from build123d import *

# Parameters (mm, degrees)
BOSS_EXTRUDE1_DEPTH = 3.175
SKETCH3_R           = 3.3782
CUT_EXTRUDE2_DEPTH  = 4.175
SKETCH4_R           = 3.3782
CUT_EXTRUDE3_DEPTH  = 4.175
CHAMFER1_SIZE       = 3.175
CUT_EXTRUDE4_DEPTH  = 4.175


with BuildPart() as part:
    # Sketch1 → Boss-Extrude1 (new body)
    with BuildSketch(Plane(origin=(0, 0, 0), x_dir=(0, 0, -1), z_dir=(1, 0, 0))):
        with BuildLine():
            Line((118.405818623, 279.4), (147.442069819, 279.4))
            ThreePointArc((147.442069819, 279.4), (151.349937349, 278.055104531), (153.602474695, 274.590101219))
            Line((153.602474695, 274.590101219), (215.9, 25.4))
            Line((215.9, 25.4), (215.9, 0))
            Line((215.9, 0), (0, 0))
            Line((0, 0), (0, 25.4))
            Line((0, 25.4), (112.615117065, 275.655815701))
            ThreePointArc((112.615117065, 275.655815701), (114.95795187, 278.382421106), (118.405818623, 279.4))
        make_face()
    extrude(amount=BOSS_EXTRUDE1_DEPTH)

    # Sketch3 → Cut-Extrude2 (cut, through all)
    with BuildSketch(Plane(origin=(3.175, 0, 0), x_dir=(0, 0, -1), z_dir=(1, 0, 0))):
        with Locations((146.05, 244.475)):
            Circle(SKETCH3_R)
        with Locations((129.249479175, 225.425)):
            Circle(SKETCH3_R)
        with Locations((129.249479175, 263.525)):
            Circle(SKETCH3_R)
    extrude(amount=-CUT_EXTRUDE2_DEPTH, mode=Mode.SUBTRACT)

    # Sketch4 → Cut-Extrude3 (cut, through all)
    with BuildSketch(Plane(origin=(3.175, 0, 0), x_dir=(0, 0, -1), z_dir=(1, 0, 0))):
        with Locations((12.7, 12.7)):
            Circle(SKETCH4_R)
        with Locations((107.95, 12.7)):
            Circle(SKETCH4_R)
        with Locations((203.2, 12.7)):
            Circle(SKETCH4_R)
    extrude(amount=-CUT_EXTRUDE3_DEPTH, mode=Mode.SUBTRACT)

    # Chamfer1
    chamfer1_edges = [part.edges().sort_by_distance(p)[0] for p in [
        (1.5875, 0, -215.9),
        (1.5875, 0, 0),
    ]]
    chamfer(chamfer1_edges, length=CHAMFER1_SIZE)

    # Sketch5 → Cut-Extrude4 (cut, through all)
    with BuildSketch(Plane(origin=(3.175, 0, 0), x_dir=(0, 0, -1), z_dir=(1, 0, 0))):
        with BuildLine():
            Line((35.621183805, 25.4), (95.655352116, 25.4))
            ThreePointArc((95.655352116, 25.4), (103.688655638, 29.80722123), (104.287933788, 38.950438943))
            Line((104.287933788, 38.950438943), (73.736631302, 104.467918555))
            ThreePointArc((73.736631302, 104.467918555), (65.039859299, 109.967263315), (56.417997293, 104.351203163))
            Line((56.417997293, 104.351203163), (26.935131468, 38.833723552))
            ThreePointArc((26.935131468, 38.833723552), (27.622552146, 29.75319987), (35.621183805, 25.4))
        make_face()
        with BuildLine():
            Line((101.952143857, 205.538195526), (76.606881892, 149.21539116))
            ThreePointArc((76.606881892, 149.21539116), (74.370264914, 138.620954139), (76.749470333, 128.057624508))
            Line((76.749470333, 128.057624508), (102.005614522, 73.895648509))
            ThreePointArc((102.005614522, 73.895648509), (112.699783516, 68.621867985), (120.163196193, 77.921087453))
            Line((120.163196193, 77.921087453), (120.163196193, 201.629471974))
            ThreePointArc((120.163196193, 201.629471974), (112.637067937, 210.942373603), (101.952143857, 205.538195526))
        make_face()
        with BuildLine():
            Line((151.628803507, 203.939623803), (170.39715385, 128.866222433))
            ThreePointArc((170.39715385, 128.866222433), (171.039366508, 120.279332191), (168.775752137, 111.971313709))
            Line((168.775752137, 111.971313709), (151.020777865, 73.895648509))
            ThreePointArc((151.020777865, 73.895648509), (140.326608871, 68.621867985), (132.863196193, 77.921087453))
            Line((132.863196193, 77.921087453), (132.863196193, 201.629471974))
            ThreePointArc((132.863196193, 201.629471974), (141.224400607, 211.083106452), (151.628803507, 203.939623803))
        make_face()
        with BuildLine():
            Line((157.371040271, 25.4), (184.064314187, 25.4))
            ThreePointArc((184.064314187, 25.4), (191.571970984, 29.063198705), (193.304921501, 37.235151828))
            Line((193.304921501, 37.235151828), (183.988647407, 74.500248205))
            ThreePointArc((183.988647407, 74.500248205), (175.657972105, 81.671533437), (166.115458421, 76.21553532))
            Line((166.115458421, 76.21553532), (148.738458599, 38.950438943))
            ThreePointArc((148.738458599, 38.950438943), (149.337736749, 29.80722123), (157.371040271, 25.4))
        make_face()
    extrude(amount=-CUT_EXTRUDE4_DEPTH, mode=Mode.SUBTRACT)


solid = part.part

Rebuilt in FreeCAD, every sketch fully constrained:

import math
import FreeCAD as App
import Part
import Sketcher
Q = App.Units.Quantity


def edges_at(feature, points):
    """Names of the edges that pass closest to the given points."""
    edges = feature.Shape.Edges
    near = lambda p: min(range(len(edges)), key=lambda i: edges[i].distToShape(Part.Vertex(*p))[0])
    return sorted({f"Edge{near(p) + 1}" for p in points})

doc = App.newDocument("Part")
body = doc.addObject("PartDesign::Body", "Body")

sketch1 = body.newObject("Sketcher::SketchObject", "Sketch")
sketch1.AttachmentSupport = (doc.getObject("YZ_Plane"), [""])
sketch1.MapMode = "FlatFace"
sketch1.addGeometry(Part.LineSegment(App.Vector(279.4, -147.44207, 0), App.Vector(279.4, -118.405819, 0)), False)
sketch1.addGeometry(Part.ArcOfCircle(Part.Circle(App.Vector(273.05, -118.405819, 0), App.Vector(0, 0, 1), 6.35), math.radians(0), math.radians(65.772255)), False)
sketch1.addGeometry(Part.LineSegment(App.Vector(275.655816, -112.615117, 0), App.Vector(25.4, 0, 0)), False)
sketch1.addGeometry(Part.LineSegment(App.Vector(25.4, 0, 0), App.Vector(0, 0, 0)), False)
sketch1.addGeometry(Part.LineSegment(App.Vector(0, 0, 0), App.Vector(0, -215.9, 0)), False)
sketch1.addGeometry(Part.LineSegment(App.Vector(0, -215.9, 0), App.Vector(25.4, -215.9, 0)), False)
sketch1.addGeometry(Part.LineSegment(App.Vector(25.4, -215.9, 0), App.Vector(274.590101, -153.602475, 0)), False)
sketch1.addGeometry(Part.ArcOfCircle(Part.Circle(App.Vector(273.05, -147.44207, 0), App.Vector(0, 0, 1), 6.35), math.radians(-75.963757), math.radians(0)), False)
sketch1.addConstraint(Sketcher.Constraint("Tangent", 0, 2, 1, 1))
sketch1.addConstraint(Sketcher.Constraint("Tangent", 1, 2, 2, 1))
sketch1.addConstraint(Sketcher.Constraint("Coincident", 2, 2, 3, 1))
sketch1.addConstraint(Sketcher.Constraint("Coincident", 3, 2, 4, 1))
sketch1.addConstraint(Sketcher.Constraint("Coincident", 4, 2, 5, 1))
sketch1.addConstraint(Sketcher.Constraint("Coincident", 5, 2, 6, 1))
sketch1.addConstraint(Sketcher.Constraint("Tangent", 6, 2, 7, 1))
sketch1.addConstraint(Sketcher.Constraint("Tangent", 7, 2, 0, 1))
sketch1.addConstraint(Sketcher.Constraint("Vertical", 0))
sketch1.addConstraint(Sketcher.Constraint("Horizontal", 3))
sketch1.addConstraint(Sketcher.Constraint("Vertical", 4))
sketch1.addConstraint(Sketcher.Constraint("Horizontal", 5))
sketch1.addConstraint(Sketcher.Constraint("Coincident", 3, 2, -1, 1))
sketch1.addConstraint(Sketcher.Constraint("Equal", 1, 7))
sketch1.addConstraint(Sketcher.Constraint("Vertical", 2, 2, 5, 2))
sketch1.addConstraint(Sketcher.Constraint("DistanceX", 3, 2, 3, 1, Q("1 in")))
sketch1.addConstraint(Sketcher.Constraint("Radius", 1, Q("0.25 in")))
sketch1.addConstraint(Sketcher.Constraint("DistanceY", 4, 2, 4, 1, Q("8.5 in")))
sketch1.addConstraint(Sketcher.Constraint("DistanceX", -1, 1, 0, 2, Q("11 in")))
sketch1.addConstraint(Sketcher.Constraint("DistanceY", 0, 1, 0, 2, Q("29.036251 mm")))
sketch1.addConstraint(Sketcher.Constraint("DistanceX", -1, 1, 6, 2, Q("274.590101 mm")))
pad1 = body.newObject("PartDesign::Pad", "Pad")
pad1.Profile = sketch1
pad1.Length = Q("0.125 in")

sketch2 = body.newObject("Sketcher::SketchObject", "Sketch001")
sketch2.AttachmentSupport = (doc.getObject("YZ_Plane"), [""])
sketch2.MapMode = "FlatFace"
sketch2.AttachmentOffset = App.Placement(App.Vector(0, 0, 0.125 * 25.4), App.Rotation())
sketch2.addGeometry(Part.Circle(App.Vector(244.475, -146.05, 0), App.Vector(0, 0, 1), 3.3782), False)
sketch2.addGeometry(Part.Circle(App.Vector(225.425, -129.249479, 0), App.Vector(0, 0, 1), 3.3782), False)
sketch2.addGeometry(Part.Circle(App.Vector(263.525, -129.249479, 0), App.Vector(0, 0, 1), 3.3782), False)
sketch2.addConstraint(Sketcher.Constraint("Equal", 0, 1))
sketch2.addConstraint(Sketcher.Constraint("Equal", 1, 2))
sketch2.addConstraint(Sketcher.Constraint("Horizontal", 1, 3, 2, 3))
sketch2.addConstraint(Sketcher.Constraint("Diameter", 0, Q("0.266 in")))
sketch2.addConstraint(Sketcher.Constraint("DistanceX", 1, 3, 2, 3, Q("1.5 in")))
sketch2.addConstraint(Sketcher.Constraint("DistanceY", 0, 3, -1, 1, Q("5.75 in")))
sketch2.addConstraint(Sketcher.Constraint("DistanceX", 1, 3, 0, 3, Q("0.75 in")))
sketch2.addConstraint(Sketcher.Constraint("DistanceX", -1, 1, 0, 3, Q("9.625 in")))
sketch2.addConstraint(Sketcher.Constraint("DistanceY", 1, 3, -1, 1, Q("129.249479 mm")))
pocket1 = body.newObject("PartDesign::Pocket", "Pocket")
pocket1.Profile = sketch2
pocket1.Type = "ThroughAll"

sketch3 = body.newObject("Sketcher::SketchObject", "Sketch002")
sketch3.AttachmentSupport = (doc.getObject("YZ_Plane"), [""])
sketch3.MapMode = "FlatFace"
sketch3.AttachmentOffset = App.Placement(App.Vector(0, 0, 0.125 * 25.4), App.Rotation())
sketch3.addGeometry(Part.Circle(App.Vector(12.7, -12.7, 0), App.Vector(0, 0, 1), 3.3782), False)
sketch3.addGeometry(Part.Circle(App.Vector(12.7, -107.95, 0), App.Vector(0, 0, 1), 3.3782), False)
sketch3.addGeometry(Part.Circle(App.Vector(12.7, -203.2, 0), App.Vector(0, 0, 1), 3.3782), False)
sketch3.addConstraint(Sketcher.Constraint("Equal", 0, 1))
sketch3.addConstraint(Sketcher.Constraint("Equal", 1, 2))
sketch3.addConstraint(Sketcher.Constraint("Vertical", 0, 3, 1, 3))
sketch3.addConstraint(Sketcher.Constraint("Vertical", 1, 3, 2, 3))
sketch3.addConstraint(Sketcher.Constraint("Diameter", 0, Q("0.266 in")))
sketch3.addConstraint(Sketcher.Constraint("DistanceY", 2, 3, -1, 1, Q("8 in")))
sketch3.addConstraint(Sketcher.Constraint("DistanceX", -1, 1, 0, 3, Q("0.5 in")))
sketch3.addConstraint(Sketcher.Constraint("DistanceY", 0, 3, -1, 1, Q("0.5 in")))
sketch3.addConstraint(Sketcher.Constraint("DistanceY", 1, 3, -1, 1, Q("4.25 in")))
pocket2 = body.newObject("PartDesign::Pocket", "Pocket001")
pocket2.Profile = sketch3
pocket2.Type = "ThroughAll"
doc.recompute()

chamfer = body.newObject("PartDesign::Chamfer", "Chamfer")
chamfer.Base = (pocket2, edges_at(pocket2, [(1.587, 0, -215.9), (1.587, 0, 0)]))
chamfer.Size = Q("0.125 in")

sketch4 = body.newObject("Sketcher::SketchObject", "Sketch003")
sketch4.AttachmentSupport = (doc.getObject("YZ_Plane"), [""])
sketch4.MapMode = "FlatFace"
sketch4.AttachmentOffset = App.Placement(App.Vector(0, 0, 0.125 * 25.4), App.Rotation())
sketch4.addGeometry(Part.LineSegment(App.Vector(25.4, -35.621184, 0), App.Vector(25.4, -95.655352, 0)), False)
sketch4.addGeometry(Part.ArcOfCircle(Part.Circle(App.Vector(34.925, -95.655352, 0), App.Vector(0, 0, 1), 9.525), math.radians(180), math.radians(295)), False)
sketch4.addGeometry(Part.LineSegment(App.Vector(38.950439, -104.287934, 0), App.Vector(104.467919, -73.736631, 0)), False)
sketch4.addGeometry(Part.ArcOfCircle(Part.Circle(App.Vector(100.44248, -65.10405, 0), App.Vector(0, 0, 1), 9.525), math.radians(-65), math.radians(65.772255)), False)
sketch4.addGeometry(Part.LineSegment(App.Vector(104.351203, -56.417997, 0), App.Vector(38.833724, -26.935131, 0)), False)
sketch4.addGeometry(Part.ArcOfCircle(Part.Circle(App.Vector(34.925, -35.621184, 0), App.Vector(0, 0, 1), 9.525), math.radians(65.772255), math.radians(180)), False)
sketch4.addGeometry(Part.LineSegment(App.Vector(205.538196, -101.952144, 0), App.Vector(149.215391, -76.606882, 0)), False)
sketch4.addGeometry(Part.ArcOfCircle(Part.Circle(App.Vector(138.792128, -99.769688, 0), App.Vector(0, 0, 1), 25.4), math.radians(65.772255), math.radians(115)), False)
sketch4.addGeometry(Part.LineSegment(App.Vector(128.057625, -76.74947, 0), App.Vector(73.895649, -102.005615, 0)), False)
sketch4.addGeometry(Part.ArcOfCircle(Part.Circle(App.Vector(77.921087, -110.638196, 0), App.Vector(0, 0, 1), 9.525), math.radians(115), math.radians(270)), False)
sketch4.addGeometry(Part.LineSegment(App.Vector(77.921087, -120.163196, 0), App.Vector(201.629472, -120.163196, 0)), False)
sketch4.addGeometry(Part.ArcOfCircle(Part.Circle(App.Vector(201.629472, -110.638196, 0), App.Vector(0, 0, 1), 9.525), math.radians(-90), math.radians(65.772255)), False)
sketch4.addGeometry(Part.LineSegment(App.Vector(128.866222, -170.397154, 0), App.Vector(203.939624, -151.628804, 0)), False)
sketch4.addGeometry(Part.ArcOfCircle(Part.Circle(App.Vector(201.629472, -142.388196, 0), App.Vector(0, 0, 1), 9.525), math.radians(-75.963757), math.radians(90)), False)
sketch4.addGeometry(Part.LineSegment(App.Vector(201.629472, -132.863196, 0), App.Vector(77.921087, -132.863196, 0)), False)
sketch4.addGeometry(Part.ArcOfCircle(Part.Circle(App.Vector(77.921087, -142.388196, 0), App.Vector(0, 0, 1), 9.525), math.radians(90), math.radians(245)), False)
sketch4.addGeometry(Part.LineSegment(App.Vector(73.895649, -151.020778, 0), App.Vector(111.971314, -168.775752, 0)), False)
sketch4.addGeometry(Part.ArcOfCircle(Part.Circle(App.Vector(122.705818, -145.755534, 0), App.Vector(0, 0, 1), 25.4), math.radians(-115), math.radians(-75.963757)), False)
sketch4.addGeometry(Part.LineSegment(App.Vector(25.4, -157.37104, 0), App.Vector(25.4, -184.064314, 0)), False)
sketch4.addGeometry(Part.ArcOfCircle(Part.Circle(App.Vector(34.925, -184.064314, 0), App.Vector(0, 0, 1), 9.525), math.radians(180), math.radians(284.036243)), False)
sketch4.addGeometry(Part.LineSegment(App.Vector(37.235152, -193.304922, 0), App.Vector(74.500248, -183.988647, 0)), False)
sketch4.addGeometry(Part.ArcOfCircle(Part.Circle(App.Vector(72.190096, -174.74804, 0), App.Vector(0, 0, 1), 9.525), math.radians(-75.963757), math.radians(65)), False)
sketch4.addGeometry(Part.LineSegment(App.Vector(76.215535, -166.115458, 0), App.Vector(38.950439, -148.738459, 0)), False)
sketch4.addGeometry(Part.ArcOfCircle(Part.Circle(App.Vector(34.925, -157.37104, 0), App.Vector(0, 0, 1), 9.525), math.radians(65), math.radians(180)), False)
sketch4.addConstraint(Sketcher.Constraint("Tangent", 0, 2, 1, 1))
sketch4.addConstraint(Sketcher.Constraint("Tangent", 1, 2, 2, 1))
sketch4.addConstraint(Sketcher.Constraint("Tangent", 2, 2, 3, 1))
sketch4.addConstraint(Sketcher.Constraint("Tangent", 3, 2, 4, 1))
sketch4.addConstraint(Sketcher.Constraint("Tangent", 4, 2, 5, 1))
sketch4.addConstraint(Sketcher.Constraint("Tangent", 5, 2, 0, 1))
sketch4.addConstraint(Sketcher.Constraint("Tangent", 6, 2, 7, 1))
sketch4.addConstraint(Sketcher.Constraint("Tangent", 7, 2, 8, 1))
sketch4.addConstraint(Sketcher.Constraint("Tangent", 8, 2, 9, 1))
sketch4.addConstraint(Sketcher.Constraint("Tangent", 9, 2, 10, 1))
sketch4.addConstraint(Sketcher.Constraint("Tangent", 10, 2, 11, 1))
sketch4.addConstraint(Sketcher.Constraint("Tangent", 11, 2, 6, 1))
sketch4.addConstraint(Sketcher.Constraint("Tangent", 12, 2, 13, 1))
sketch4.addConstraint(Sketcher.Constraint("Tangent", 13, 2, 14, 1))
sketch4.addConstraint(Sketcher.Constraint("Tangent", 14, 2, 15, 1))
sketch4.addConstraint(Sketcher.Constraint("Tangent", 15, 2, 16, 1))
sketch4.addConstraint(Sketcher.Constraint("Tangent", 16, 2, 17, 1))
sketch4.addConstraint(Sketcher.Constraint("Tangent", 17, 2, 12, 1))
sketch4.addConstraint(Sketcher.Constraint("Tangent", 18, 2, 19, 1))
sketch4.addConstraint(Sketcher.Constraint("Tangent", 19, 2, 20, 1))
sketch4.addConstraint(Sketcher.Constraint("Tangent", 20, 2, 21, 1))
sketch4.addConstraint(Sketcher.Constraint("Tangent", 21, 2, 22, 1))
sketch4.addConstraint(Sketcher.Constraint("Tangent", 22, 2, 23, 1))
sketch4.addConstraint(Sketcher.Constraint("Tangent", 23, 2, 18, 1))
sketch4.addConstraint(Sketcher.Constraint("Vertical", 0))
sketch4.addConstraint(Sketcher.Constraint("Horizontal", 10))
sketch4.addConstraint(Sketcher.Constraint("Horizontal", 14))
sketch4.addConstraint(Sketcher.Constraint("Vertical", 18))
sketch4.addConstraint(Sketcher.Constraint("Equal", 1, 3))
sketch4.addConstraint(Sketcher.Constraint("Equal", 3, 5))
sketch4.addConstraint(Sketcher.Constraint("Equal", 5, 9))
sketch4.addConstraint(Sketcher.Constraint("Equal", 9, 11))
sketch4.addConstraint(Sketcher.Constraint("Equal", 11, 13))
sketch4.addConstraint(Sketcher.Constraint("Equal", 13, 15))
sketch4.addConstraint(Sketcher.Constraint("Equal", 7, 17))
sketch4.addConstraint(Sketcher.Constraint("Equal", 15, 19))
sketch4.addConstraint(Sketcher.Constraint("Equal", 19, 21))
sketch4.addConstraint(Sketcher.Constraint("Equal", 21, 23))
sketch4.addConstraint(Sketcher.Constraint("Parallel", 4, 6))
sketch4.addConstraint(Sketcher.Constraint("Parallel", 2, 8))
sketch4.addConstraint(Sketcher.Constraint("Parallel", 12, 20))
sketch4.addConstraint(Sketcher.Constraint("Parallel", 16, 22))
sketch4.addConstraint(Sketcher.Constraint("Vertical", 11, 3, 13, 3))
sketch4.addConstraint(Sketcher.Constraint("Vertical", 9, 3, 15, 3))
sketch4.addConstraint(Sketcher.Constraint("Vertical", 5, 3, 19, 3))
sketch4.addConstraint(Sketcher.Constraint("Vertical", 8, 2, 15, 2))
sketch4.addConstraint(Sketcher.Constraint("Radius", 7, Q("1 in")))
sketch4.addConstraint(Sketcher.Constraint("DistanceX", -1, 1, 0, 2, Q("1 in")))
sketch4.addConstraint(Sketcher.Constraint("Angle", 2, Q("25 deg")))
sketch4.addConstraint(Sketcher.Constraint("Radius", 1, Q("0.375 in")))
sketch4.addConstraint(Sketcher.Constraint("DistanceY", 13, 2, 10, 2, Q("0.5 in")))
sketch4.addConstraint(Sketcher.Constraint("DistanceY", 15, 2, -1, 1, Q("5.9456999 in")))
sketch4.addConstraint(Sketcher.Constraint("DistanceY", 0, 2, 0, 1, Q("60.034168 mm")))
sketch4.addConstraint(Sketcher.Constraint("DistanceY", 21, 3, 23, 3, Q("17.377 mm")))
sketch4.addConstraint(Sketcher.Constraint("DistanceY", 9, 3, 3, 2, Q("54.220199 mm")))
sketch4.addConstraint(Sketcher.Constraint("DistanceY", 17, 2, 16, 2, Q("1.621402 mm")))
sketch4.addConstraint(Sketcher.Constraint("DistanceX", 15, 2, 20, 2, Q("0.6046 mm")))
sketch4.addConstraint(Sketcher.Constraint("Distance", 2, Q("72.29054 mm")))
sketch4.addConstraint(Sketcher.Constraint("Distance", 8, Q("59.761128 mm")))
sketch4.addConstraint(Sketcher.Constraint("DistanceY", 21, 3, -1, 1, Q("174.74804 mm")))
pocket3 = body.newObject("PartDesign::Pocket", "Pocket002")
pocket3.Profile = sketch4
pocket3.Type = "ThroughAll"

doc.recompute()
